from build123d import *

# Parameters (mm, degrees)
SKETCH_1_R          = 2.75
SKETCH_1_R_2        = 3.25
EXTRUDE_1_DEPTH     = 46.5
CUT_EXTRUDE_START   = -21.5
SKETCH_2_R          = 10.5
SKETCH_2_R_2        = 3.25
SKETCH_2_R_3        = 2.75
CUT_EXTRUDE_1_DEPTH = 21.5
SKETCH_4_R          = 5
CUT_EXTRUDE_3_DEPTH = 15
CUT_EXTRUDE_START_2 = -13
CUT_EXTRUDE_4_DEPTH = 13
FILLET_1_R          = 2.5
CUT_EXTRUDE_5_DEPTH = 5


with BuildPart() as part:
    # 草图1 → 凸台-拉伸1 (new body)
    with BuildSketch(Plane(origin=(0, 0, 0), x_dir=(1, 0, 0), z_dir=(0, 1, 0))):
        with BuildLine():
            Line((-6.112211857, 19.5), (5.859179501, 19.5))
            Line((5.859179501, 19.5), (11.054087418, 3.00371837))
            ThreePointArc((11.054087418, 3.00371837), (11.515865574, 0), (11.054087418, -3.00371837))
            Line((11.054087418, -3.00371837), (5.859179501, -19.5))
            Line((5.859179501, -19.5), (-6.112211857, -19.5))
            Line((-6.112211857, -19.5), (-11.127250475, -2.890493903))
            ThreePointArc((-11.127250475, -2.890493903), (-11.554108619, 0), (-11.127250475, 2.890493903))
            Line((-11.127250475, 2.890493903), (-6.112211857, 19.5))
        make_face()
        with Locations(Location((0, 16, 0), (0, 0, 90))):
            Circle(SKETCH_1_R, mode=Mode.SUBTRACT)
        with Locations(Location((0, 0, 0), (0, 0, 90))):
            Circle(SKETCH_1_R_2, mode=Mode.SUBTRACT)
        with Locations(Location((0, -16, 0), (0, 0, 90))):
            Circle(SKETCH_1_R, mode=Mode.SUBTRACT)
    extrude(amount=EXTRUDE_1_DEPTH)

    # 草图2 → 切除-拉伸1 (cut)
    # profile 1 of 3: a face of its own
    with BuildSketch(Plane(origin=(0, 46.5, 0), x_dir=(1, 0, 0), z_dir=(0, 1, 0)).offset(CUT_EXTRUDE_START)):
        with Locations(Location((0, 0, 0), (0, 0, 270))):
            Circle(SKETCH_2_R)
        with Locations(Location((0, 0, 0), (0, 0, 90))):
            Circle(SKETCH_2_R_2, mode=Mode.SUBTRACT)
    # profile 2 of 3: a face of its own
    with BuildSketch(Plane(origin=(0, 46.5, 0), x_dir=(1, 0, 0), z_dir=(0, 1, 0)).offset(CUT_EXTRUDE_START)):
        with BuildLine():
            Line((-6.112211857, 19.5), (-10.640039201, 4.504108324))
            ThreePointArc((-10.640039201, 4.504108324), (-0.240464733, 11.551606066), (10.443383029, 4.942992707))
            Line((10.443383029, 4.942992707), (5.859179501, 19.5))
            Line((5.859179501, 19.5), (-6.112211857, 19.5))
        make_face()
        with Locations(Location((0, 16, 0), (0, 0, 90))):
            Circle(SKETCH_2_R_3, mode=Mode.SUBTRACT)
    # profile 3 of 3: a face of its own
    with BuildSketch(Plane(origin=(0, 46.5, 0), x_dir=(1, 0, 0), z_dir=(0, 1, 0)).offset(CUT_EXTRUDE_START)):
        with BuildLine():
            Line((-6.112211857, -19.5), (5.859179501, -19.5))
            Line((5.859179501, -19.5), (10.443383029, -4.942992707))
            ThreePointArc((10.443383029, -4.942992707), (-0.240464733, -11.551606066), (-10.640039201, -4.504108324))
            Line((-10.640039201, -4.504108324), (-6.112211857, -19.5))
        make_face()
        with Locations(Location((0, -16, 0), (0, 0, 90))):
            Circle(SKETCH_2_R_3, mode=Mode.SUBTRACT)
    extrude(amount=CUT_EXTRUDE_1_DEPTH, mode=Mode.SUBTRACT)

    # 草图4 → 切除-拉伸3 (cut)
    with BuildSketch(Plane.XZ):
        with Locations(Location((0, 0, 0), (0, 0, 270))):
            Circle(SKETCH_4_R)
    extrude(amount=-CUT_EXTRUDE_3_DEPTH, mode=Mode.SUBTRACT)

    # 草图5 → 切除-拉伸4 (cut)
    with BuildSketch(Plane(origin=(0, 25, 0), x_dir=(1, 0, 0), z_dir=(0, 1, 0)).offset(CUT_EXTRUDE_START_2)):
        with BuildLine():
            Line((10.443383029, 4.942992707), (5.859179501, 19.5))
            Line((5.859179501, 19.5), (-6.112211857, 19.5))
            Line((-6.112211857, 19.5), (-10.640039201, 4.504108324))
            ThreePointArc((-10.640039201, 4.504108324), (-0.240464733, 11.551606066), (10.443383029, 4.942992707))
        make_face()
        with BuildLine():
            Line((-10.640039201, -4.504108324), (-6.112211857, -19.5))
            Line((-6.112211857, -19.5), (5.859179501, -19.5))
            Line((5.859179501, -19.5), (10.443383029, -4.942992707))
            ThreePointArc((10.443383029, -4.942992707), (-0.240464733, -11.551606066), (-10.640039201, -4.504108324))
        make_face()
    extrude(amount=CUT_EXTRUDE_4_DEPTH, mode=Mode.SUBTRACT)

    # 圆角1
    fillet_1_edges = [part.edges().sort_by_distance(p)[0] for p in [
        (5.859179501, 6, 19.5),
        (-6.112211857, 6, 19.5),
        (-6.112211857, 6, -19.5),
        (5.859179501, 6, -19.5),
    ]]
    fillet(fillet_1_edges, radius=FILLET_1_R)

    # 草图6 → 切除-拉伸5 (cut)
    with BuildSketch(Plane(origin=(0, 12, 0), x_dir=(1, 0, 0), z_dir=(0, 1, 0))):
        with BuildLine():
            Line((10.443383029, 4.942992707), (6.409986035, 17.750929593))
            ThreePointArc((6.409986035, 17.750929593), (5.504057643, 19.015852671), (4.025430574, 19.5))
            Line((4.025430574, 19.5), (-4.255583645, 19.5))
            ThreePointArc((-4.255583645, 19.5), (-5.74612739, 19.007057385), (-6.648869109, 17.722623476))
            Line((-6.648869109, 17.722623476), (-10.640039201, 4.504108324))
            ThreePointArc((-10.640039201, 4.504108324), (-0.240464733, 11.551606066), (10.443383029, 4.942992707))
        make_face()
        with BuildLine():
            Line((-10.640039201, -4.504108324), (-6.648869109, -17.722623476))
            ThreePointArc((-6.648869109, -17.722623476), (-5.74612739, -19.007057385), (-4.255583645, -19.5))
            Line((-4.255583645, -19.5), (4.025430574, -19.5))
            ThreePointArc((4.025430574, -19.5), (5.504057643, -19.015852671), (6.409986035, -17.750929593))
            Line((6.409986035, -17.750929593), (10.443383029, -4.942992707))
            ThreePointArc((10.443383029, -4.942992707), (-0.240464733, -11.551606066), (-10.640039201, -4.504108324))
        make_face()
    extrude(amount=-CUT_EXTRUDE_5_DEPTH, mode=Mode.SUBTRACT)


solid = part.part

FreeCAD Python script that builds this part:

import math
import FreeCAD as App
import Part
import Sketcher
Q = App.Units.Quantity


def edges_at(feature, points):
    """Names of the edges that pass closest to the given points."""
    edges = feature.Shape.Edges
    near = lambda p: min(range(len(edges)), key=lambda i: edges[i].distToShape(Part.Vertex(*p))[0])
    return sorted({f"Edge{near(p) + 1}" for p in points})

doc = App.newDocument("Part")
body = doc.addObject("PartDesign::Body", "Body")

# Sketch on XZ plane
sketch1 = body.newObject("Sketcher::SketchObject", "Sketch")
sketch1.AttachmentSupport = (doc.getObject("XZ_Plane"), [""])
sketch1.MapMode = "FlatFace"
sketch1.addGeometry([
    Part.LineSegment(App.Vector(5.9, -19.5, 0), App.Vector(-6.1, -19.5, 0)),  # 0
    Part.LineSegment(App.Vector(-6.1, -19.5, 0), App.Vector(-11.1, -2.9, 0)),  # 1
    Part.ArcOfCircle(Part.Circle(App.Vector(-1.6, 0, 0), App.Vector(0, 0, 1), 10), math.radians(163), math.radians(197)),  # 2
    Part.LineSegment(App.Vector(-11.1, 2.9, 0), App.Vector(-6.1, 19.5, 0)),  # 3
    Part.LineSegment(App.Vector(-6.1, 19.5, 0), App.Vector(5.9, 19.5, 0)),  # 4
    Part.LineSegment(App.Vector(5.9, 19.5, 0), App.Vector(11.1, 3, 0)),  # 5
    Part.ArcOfCircle(Part.Circle(App.Vector(1.5, 0, 0), App.Vector(0, 0, 1), 10), math.radians(-17), math.radians(17)),  # 6
    Part.LineSegment(App.Vector(11.1, -3, 0), App.Vector(5.9, -19.5, 0)),  # 7
    Part.Circle(App.Vector(0, 16, 0), App.Vector(0, 0, 1), 2.8),  # 8
    Part.Circle(App.Vector(0, 0, 0), App.Vector(0, 0, 1), 3.2),  # 9
    Part.Circle(App.Vector(0, -16, 0), App.Vector(0, 0, 1), 2.8),  # 10
], False)
sketch1.addConstraint([
    Sketcher.Constraint("Coincident", 0, 2, 1, 1),
    Sketcher.Constraint("Tangent", 1, 2, 2, 2),
    Sketcher.Constraint("Tangent", 2, 1, 3, 1),
    Sketcher.Constraint("Coincident", 3, 2, 4, 1),
    Sketcher.Constraint("Coincident", 4, 2, 5, 1),
    Sketcher.Constraint("Tangent", 5, 2, 6, 2),
    Sketcher.Constraint("Tangent", 6, 1, 7, 1),
    Sketcher.Constraint("Coincident", 7, 2, 0, 1),
    Sketcher.Constraint("Horizontal", 0),
    Sketcher.Constraint("Horizontal", 4),
    Sketcher.Constraint("Coincident", 9, 3, -1, 1),
    Sketcher.Constraint("Equal", 2, 6),
    Sketcher.Constraint("Equal", 8, 10),
    Sketcher.Constraint("Symmetric", 8, 3, 10, 3, -1, 1),
    Sketcher.Constraint("Symmetric", 1, 2, 2, 1, -1),
    Sketcher.Constraint("Symmetric", 5, 2, 6, 1, -1),
    Sketcher.Constraint("PointOnObject", 8, 3, -2),
    Sketcher.Constraint("Vertical", 0, 2, 3, 2),
    Sketcher.Constraint("Radius", 2, Q("10 mm")),
    Sketcher.Constraint("Diameter", 8, Q("5.5 mm")),
    Sketcher.Constraint("Diameter", 9, Q("6.5 mm")),
    Sketcher.Constraint("DistanceY", -1, 1, 8, 3, Q("16 mm")),
    Sketcher.Constraint("DistanceY", 0, 2, -1, 1, Q("19.5 mm")),
    Sketcher.Constraint("DistanceX", 0, 2, 0, 1, Q("11.971391 mm")),
    Sketcher.Constraint("Distance", 1, Q("17.35011 mm")),
    Sketcher.Constraint("DistanceX", 2, 3, -1, 1, Q("1.554109 mm")),
    Sketcher.Constraint("DistanceY", -1, 1, 5, 2, Q("3.003718 mm")),
])
pad1 = body.newObject("PartDesign::Pad", "Pad")
pad1.Profile = sketch1
pad1.Length = 46.5
pad1.Reversed = True

# Sketch on XZ plane
sketch2 = body.newObject("Sketcher::SketchObject", "Sketch001")
sketch2.AttachmentSupport = (doc.getObject("XZ_Plane"), [""])
sketch2.MapMode = "FlatFace"
sketch2.AttachmentOffset = App.Placement(App.Vector(0, 0, -25), App.Rotation())
sketch2.addGeometry([
    Part.Circle(App.Vector(0, 0, 0), App.Vector(0, 0, 1), 10.5),  # 0
    Part.Circle(App.Vector(0, 0, 0), App.Vector(0, 0, 1), 3.2),  # 1
    Part.LineSegment(App.Vector(-6.1, -19.5, 0), App.Vector(-10.6, -4.5, 0)),  # 2
    Part.ArcOfCircle(Part.Circle(App.Vector(0, 0, 0), App.Vector(0, 0, 1), 11.6), math.radians(-157), math.radians(-25)),  # 3
    Part.LineSegment(App.Vector(10.4, -4.9, 0), App.Vector(5.9, -19.5, 0)),  # 4
    Part.LineSegment(App.Vector(5.9, -19.5, 0), App.Vector(-6.1, -19.5, 0)),  # 5
    Part.Circle(App.Vector(0, -16, 0), App.Vector(0, 0, 1), 2.8),  # 6
    Part.LineSegment(App.Vector(-6.1, 19.5, 0), App.Vector(5.9, 19.5, 0)),  # 7
    Part.LineSegment(App.Vector(5.9, 19.5, 0), App.Vector(10.4, 4.9, 0)),  # 8
    Part.ArcOfCircle(Part.Circle(App.Vector(0, 0, 0), App.Vector(0, 0, 1), 11.6), math.radians(25), math.radians(157)),  # 9
    Part.LineSegment(App.Vector(-10.6, 4.5, 0), App.Vector(-6.1, 19.5, 0)),  # 10
    Part.Circle(App.Vector(0, 16, 0), App.Vector(0, 0, 1), 2.8),  # 11
], False)
sketch2.addConstraint([
    Sketcher.Constraint("Coincident", 2, 2, 3, 1),
    Sketcher.Constraint("Coincident", 3, 2, 4, 1),
    Sketcher.Constraint("Coincident", 4, 2, 5, 1),
    Sketcher.Constraint("Coincident", 5, 2, 2, 1),
    Sketcher.Constraint("Coincident", 7, 2, 8, 1),
    Sketcher.Constraint("Coincident", 8, 2, 9, 1),
    Sketcher.Constraint("Coincident", 9, 2, 10, 1),
    Sketcher.Constraint("Coincident", 10, 2, 7, 1),
    Sketcher.Constraint("Horizontal", 5),
    Sketcher.Constraint("Horizontal", 7),
    Sketcher.Constraint("Coincident", 0, 3, -1, 1),
    Sketcher.Constraint("Coincident", 1, 3, -1, 1),
    Sketcher.Constraint("Coincident", 3, 3, -1, 1),
    Sketcher.Constraint("Coincident", 9, 3, -1, 1),
    Sketcher.Constraint("Equal", 3, 9),
    Sketcher.Constraint("Equal", 6, 11),
    Sketcher.Constraint("Symmetric", 6, 3, 11, 3, -1, 1),
    Sketcher.Constraint("Symmetric", 4, 2, 7, 2, -1),
    Sketcher.Constraint("PointOnObject", 6, 3, -2),
    Sketcher.Constraint("Vertical", 3, 2, 8, 2),
    Sketcher.Constraint("Vertical", 2, 2, 9, 2),
    Sketcher.Constraint("Vertical", 5, 2, 10, 2),
    Sketcher.Constraint("Diameter", 0, Q("21 mm")),
    Sketcher.Constraint("Diameter", 1, Q("6.5 mm")),
    Sketcher.Constraint("Diameter", 6, Q("5.5 mm")),
    Sketcher.Constraint("DistanceY", 6, 3, -1, 1, Q("16 mm")),
    Sketcher.Constraint("DistanceY", 4, 2, -1, 1, Q("19.5 mm")),
    Sketcher.Constraint("Radius", 3, Q("11.554109 mm")),
    Sketcher.Constraint("DistanceX", 5, 2, 5, 1, Q("11.971391 mm")),
    Sketcher.Constraint("DistanceX", 2, 2, -1, 1, Q("10.640039 mm")),
    Sketcher.Constraint("DistanceX", -1, 1, 4, 2, Q("5.85918 mm")),
    Sketcher.Constraint("Distance", 4, Q("15.261762 mm")),
])
pocket1 = body.newObject("PartDesign::Pocket", "Pocket")
pocket1.Profile = sketch2
pocket1.Length = 21.5

# Sketch on XZ plane
sketch3 = body.newObject("Sketcher::SketchObject", "Sketch002")
sketch3.AttachmentSupport = (doc.getObject("XZ_Plane"), [""])
sketch3.MapMode = "FlatFace"
sketch3.addGeometry(Part.Circle(App.Vector(0, 0, 0), App.Vector(0, 0, 1), 5), False)
sketch3.addConstraint([
    Sketcher.Constraint("Coincident", 0, 3, -1, 1),
    Sketcher.Constraint("Diameter", 0, Q("10 mm")),
])
pocket2 = body.newObject("PartDesign::Pocket", "Pocket001")
pocket2.Profile = sketch3
pocket2.Length = 15

# Sketch on XZ plane
sketch4 = body.newObject("Sketcher::SketchObject", "Sketch003")
sketch4.AttachmentSupport = (doc.getObject("XZ_Plane"), [""])
sketch4.MapMode = "FlatFace"
sketch4.AttachmentOffset = App.Placement(App.Vector(0, 0, -12), App.Rotation())
sketch4.addGeometry([
    Part.LineSegment(App.Vector(10, -5, 0), App.Vector(6, -20, 0)),  # 0
    Part.LineSegment(App.Vector(6, -20, 0), App.Vector(-6, -20, 0)),  # 1
    Part.LineSegment(App.Vector(-6, -20, 0), App.Vector(-11, -5, 0)),  # 2
    Part.ArcOfCircle(Part.Circle(App.Vector(0, 0, 0), App.Vector(0, 0, 1), 12), math.radians(-157), math.radians(-25)),  # 3
    Part.LineSegment(App.Vector(-11, 5, 0), App.Vector(-6, 20, 0)),  # 4
    Part.LineSegment(App.Vector(-6, 20, 0), App.Vector(6, 20, 0)),  # 5
    Part.LineSegment(App.Vector(6, 20, 0), App.Vector(10, 5, 0)),  # 6
    Part.ArcOfCircle(Part.Circle(App.Vector(0, 0, 0), App.Vector(0, 0, 1), 12), math.radians(25), math.radians(157)),  # 7
], False)
sketch4.addConstraint([
    Sketcher.Constraint("Coincident", 0, 2, 1, 1),
    Sketcher.Constraint("Coincident", 1, 2, 2, 1),
    Sketcher.Constraint("Coincident", 2, 2, 3, 1),
    Sketcher.Constraint("Coincident", 3, 2, 0, 1),
    Sketcher.Constraint("Coincident", 4, 2, 5, 1),
    Sketcher.Constraint("Coincident", 5, 2, 6, 1),
    Sketcher.Constraint("Coincident", 6, 2, 7, 1),
    Sketcher.Constraint("Coincident", 7, 2, 4, 1),
    Sketcher.Constraint("Horizontal", 1),
    Sketcher.Constraint("Horizontal", 5),
    Sketcher.Constraint("Coincident", 3, 3, -1, 1),
    Sketcher.Constraint("Coincident", 7, 3, -1, 1),
    Sketcher.Constraint("Equal", 3, 7),
    Sketcher.Constraint("Symmetric", 1, 2, 4, 2, -1),
    Sketcher.Constraint("Vertical", 0, 2, 5, 2),
    Sketcher.Constraint("Vertical", 3, 2, 6, 2),
    Sketcher.Constraint("Vertical", 2, 2, 7, 2),
    Sketcher.Constraint("DistanceY", 1, 2, 4, 2, Q("39 mm")),
    Sketcher.Constraint("Radius", 3, Q("11.554109 mm")),
    Sketcher.Constraint("DistanceX", 1, 2, 1, 1, Q("11.971391 mm")),
    Sketcher.Constraint("DistanceX", -1, 1, 0, 2, Q("5.85918 mm")),
    Sketcher.Constraint("DistanceX", 2, 2, -1, 1, Q("10.640039 mm")),
    Sketcher.Constraint("Distance", 0, Q("15.261762 mm")),
])
pocket3 = body.newObject("PartDesign::Pocket", "Pocket002")
pocket3.Profile = sketch4
pocket3.Length = 13
doc.recompute()

fillet = body.newObject("PartDesign::Fillet", "Fillet")
fillet.Base = (pocket3, edges_at(pocket3, [
    (5.859, 6, 19.5),
    (-6.112, 6, 19.5),
    (-6.112, 6, -19.5),
    (5.859, 6, -19.5),
]))
fillet.Radius = 2.5

# Sketch on XZ plane
sketch5 = body.newObject("Sketcher::SketchObject", "Sketch004")
sketch5.AttachmentSupport = (doc.getObject("XZ_Plane"), [""])
sketch5.MapMode = "FlatFace"
sketch5.AttachmentOffset = App.Placement(App.Vector(0, 0, -12), App.Rotation())
sketch5.addGeometry([
    Part.LineSegment(App.Vector(10.443383, -4.942993, 0), App.Vector(6.409986, -17.75093, 0)),  # 0
    Part.ArcOfCircle(Part.Circle(App.Vector(4.025431, -17, 0), App.Vector(0, 0, 1), 2.5), math.radians(-90), math.radians(-17.479938)),  # 1
    Part.LineSegment(App.Vector(4.025431, -19.5, 0), App.Vector(-4.255584, -19.5, 0)),  # 2
    Part.ArcOfCircle(Part.Circle(App.Vector(-4.255584, -17, 0), App.Vector(0, 0, 1), 2.5), math.radians(-163.198947), math.radians(-90)),  # 3
    Part.LineSegment(App.Vector(-6.648869, -17.722623, 0), App.Vector(-10.640039, -4.504108, 0)),  # 4
    Part.ArcOfCircle(Part.Circle(App.Vector(0, 0, 0), App.Vector(0, 0, 1), 11.554109), math.radians(-157.056239), math.radians(-25.328819)),  # 5
    Part.LineSegment(App.Vector(-10.640039, 4.504108, 0), App.Vector(-6.648869, 17.722623, 0)),  # 6
    Part.ArcOfCircle(Part.Circle(App.Vector(-4.255584, 17, 0), App.Vector(0, 0, 1), 2.5), math.radians(90), math.radians(163.198947)),  # 7
    Part.LineSegment(App.Vector(-4.255584, 19.5, 0), App.Vector(4.025431, 19.5, 0)),  # 8
    Part.ArcOfCircle(Part.Circle(App.Vector(4.025431, 17, 0), App.Vector(0, 0, 1), 2.5), math.radians(17.479938), math.radians(90)),  # 9
    Part.LineSegment(App.Vector(6.409986, 17.75093, 0), App.Vector(10.443383, 4.942993, 0)),  # 10
    Part.ArcOfCircle(Part.Circle(App.Vector(0, 0, 0), App.Vector(0, 0, 1), 11.554109), math.radians(25.328819), math.radians(157.056239)),  # 11
], False)
sketch5.addConstraint([
    Sketcher.Constraint("Coincident", 0, 2, 1, 2),
    Sketcher.Constraint("Coincident", 1, 1, 2, 1),
    Sketcher.Constraint("Coincident", 2, 2, 3, 2),
    Sketcher.Constraint("Coincident", 3, 1, 4, 1),
    Sketcher.Constraint("Coincident", 4, 2, 5, 1),
    Sketcher.Constraint("Coincident", 5, 2, 0, 1),
    Sketcher.Constraint("Coincident", 6, 2, 7, 2),
    Sketcher.Constraint("Coincident", 7, 1, 8, 1),
    Sketcher.Constraint("Coincident", 8, 2, 9, 2),
    Sketcher.Constraint("Coincident", 9, 1, 10, 1),
    Sketcher.Constraint("Coincident", 10, 2, 11, 1),
    Sketcher.Constraint("Coincident", 11, 2, 6, 1),
    Sketcher.Constraint("Horizontal", 2),
    Sketcher.Constraint("Horizontal", 8),
    Sketcher.Constraint("Coincident", 5, 3, -1, 1),
    Sketcher.Constraint("Coincident", 11, 3, -1, 1),
    Sketcher.Constraint("Radius", 1, Q("2.5 mm")),
    Sketcher.Constraint("Radius", 3, Q("2.5 mm")),
    Sketcher.Constraint("Radius", 7, Q("2.5 mm")),
    Sketcher.Constraint("Radius", 9, Q("2.5 mm")),
    Sketcher.Constraint("DistanceY", 1, 3, -1, 1, Q("17 mm")),
    Sketcher.Constraint("DistanceY", -1, 1, 7, 3, Q("17 mm")),
    Sketcher.Constraint("Radius", 5, Q("11.554109 mm")),
    Sketcher.Constraint("Radius", 11, Q("11.554109 mm")),
    Sketcher.Constraint("DistanceX", 3, 1, 1, 3, Q("10.6743 mm")),
    Sketcher.Constraint("DistanceX", 3, 1, 1, 1, Q("10.6743 mm")),
    Sketcher.Constraint("DistanceX", 6, 2, 9, 3, Q("10.6743 mm")),
    Sketcher.Constraint("DistanceX", 6, 2, 8, 2, Q("10.6743 mm")),
    Sketcher.Constraint("DistanceX", 2, 2, 2, 1, Q("8.281014 mm")),
    Sketcher.Constraint("DistanceX", 8, 1, 8, 2, Q("8.281014 mm")),
    Sketcher.Constraint("DistanceX", -1, 1, 1, 3, Q("4.025431 mm")),
    Sketcher.Constraint("DistanceX", -1, 1, 9, 3, Q("4.025431 mm")),
    Sketcher.Constraint("DistanceY", 0, 2, -1, 1, Q("17.75093 mm")),
    Sketcher.Constraint("DistanceX", 4, 2, -1, 1, Q("10.640039 mm")),
    Sketcher.Constraint("DistanceY", -1, 1, 9, 1, Q("17.75093 mm")),
    Sketcher.Constraint("DistanceX", 11, 2, -1, 1, Q("10.640039 mm")),
    Sketcher.Constraint("DistanceX", 3, 3, 0, 2, Q("10.66557 mm")),
    Sketcher.Constraint("DistanceY", 4, 2, 6, 2, Q("22.226732 mm")),
    Sketcher.Constraint("Distance", 0, Q("13.428013 mm")),
    Sketcher.Constraint("Distance", 10, Q("13.428013 mm")),
])
pocket4 = body.newObject("PartDesign::Pocket", "Pocket003")
pocket4.Profile = sketch5
pocket4.Length = 5
pocket4.Reversed = True

doc.recompute()
